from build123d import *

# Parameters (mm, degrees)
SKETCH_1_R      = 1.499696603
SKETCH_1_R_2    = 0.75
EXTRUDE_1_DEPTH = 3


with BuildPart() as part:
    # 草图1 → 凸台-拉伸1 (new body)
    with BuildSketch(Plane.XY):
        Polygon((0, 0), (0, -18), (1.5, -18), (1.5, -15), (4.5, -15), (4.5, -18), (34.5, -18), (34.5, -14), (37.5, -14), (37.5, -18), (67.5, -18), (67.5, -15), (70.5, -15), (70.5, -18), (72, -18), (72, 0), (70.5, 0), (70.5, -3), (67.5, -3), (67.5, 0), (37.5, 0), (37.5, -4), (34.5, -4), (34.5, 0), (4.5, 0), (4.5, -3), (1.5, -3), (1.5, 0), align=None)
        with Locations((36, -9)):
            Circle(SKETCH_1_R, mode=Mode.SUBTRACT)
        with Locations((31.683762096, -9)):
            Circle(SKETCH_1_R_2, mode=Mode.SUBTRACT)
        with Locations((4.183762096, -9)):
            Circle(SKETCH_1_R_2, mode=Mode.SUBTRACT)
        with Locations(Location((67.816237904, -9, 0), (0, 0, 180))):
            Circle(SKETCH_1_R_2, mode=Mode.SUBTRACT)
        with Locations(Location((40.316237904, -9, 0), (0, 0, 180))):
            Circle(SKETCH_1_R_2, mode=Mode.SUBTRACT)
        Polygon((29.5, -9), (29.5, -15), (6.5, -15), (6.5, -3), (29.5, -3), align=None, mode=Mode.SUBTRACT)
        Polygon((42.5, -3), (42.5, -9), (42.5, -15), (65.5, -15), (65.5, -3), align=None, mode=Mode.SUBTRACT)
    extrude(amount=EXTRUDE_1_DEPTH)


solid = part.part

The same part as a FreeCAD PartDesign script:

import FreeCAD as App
import Part
import Sketcher

V = App.Vector
Q = App.Units.Quantity

doc = App.newDocument("Part")
params = doc.addObject("Spreadsheet::Sheet", "Params")
for row, (alias, value) in enumerate([
    ("sketch1_diameter", "1.5 mm"),
    ("sketch1_width", "3 mm"),
    ("sketch1_width2", "30 mm"),
    ("sketch1_width3", "23 mm"),
    ("sketch1_height", "18 mm"),
    ("pad1_length", "3 mm"),
], start=1):
    params.set(f"A{row}", alias)
    params.set(f"B{row}", "=" + value)
    params.setAlias(f"B{row}", alias)

body = doc.addObject("PartDesign::Body", "Body")

sketch1 = doc.addObject("Sketcher::SketchObject", "Sketch")
body.addObject(sketch1)
sketch1.AttachmentSupport = (doc.XY_Plane, [""])
sketch1.MapMode = "FlatFace"
sketch1.addGeometry([
    Part.LineSegment(V(0, 0, 0), V(0, -18, 0)),
    Part.LineSegment(V(0, -18, 0), V(1.5, -18, 0)),
    Part.LineSegment(V(1.5, -18, 0), V(1.5, -15, 0)),
    Part.LineSegment(V(1.5, -15, 0), V(4.5, -15, 0)),
    Part.LineSegment(V(4.5, -15, 0), V(4.5, -18, 0)),
    Part.LineSegment(V(4.5, -18, 0), V(34.5, -18, 0)),
    Part.LineSegment(V(34.5, -18, 0), V(34.5, -14, 0)),
    Part.LineSegment(V(34.5, -14, 0), V(37.5, -14, 0)),
    Part.LineSegment(V(37.5, -14, 0), V(37.5, -18, 0)),
    Part.LineSegment(V(37.5, -18, 0), V(67.5, -18, 0)),
    Part.LineSegment(V(67.5, -18, 0), V(67.5, -15, 0)),
    Part.LineSegment(V(67.5, -15, 0), V(70.5, -15, 0)),
    Part.LineSegment(V(70.5, -15, 0), V(70.5, -18, 0)),
    Part.LineSegment(V(70.5, -18, 0), V(72, -18, 0)),
    Part.LineSegment(V(72, -18, 0), V(72, 0, 0)),
    Part.LineSegment(V(72, 0, 0), V(70.5, 0, 0)),
    Part.LineSegment(V(70.5, 0, 0), V(70.5, -3, 0)),
    Part.LineSegment(V(70.5, -3, 0), V(67.5, -3, 0)),
    Part.LineSegment(V(67.5, -3, 0), V(67.5, 0, 0)),
    Part.LineSegment(V(67.5, 0, 0), V(37.5, 0, 0)),
    Part.LineSegment(V(37.5, 0, 0), V(37.5, -4, 0)),
    Part.LineSegment(V(37.5, -4, 0), V(34.5, -4, 0)),
    Part.LineSegment(V(34.5, -4, 0), V(34.5, 0, 0)),
    Part.LineSegment(V(34.5, 0, 0), V(4.5, 0, 0)),
    Part.LineSegment(V(4.5, 0, 0), V(4.5, -3, 0)),
    Part.LineSegment(V(4.5, -3, 0), V(1.5, -3, 0)),
    Part.LineSegment(V(1.5, -3, 0), V(1.5, 0, 0)),
    Part.LineSegment(V(1.5, 0, 0), V(0, 0, 0)),
    Part.Circle(V(4.2, -9, 0), V(0, 0, 1), 0.8),
    Part.LineSegment(V(29.5, -3, 0), V(29.5, -15, 0)),
    Part.LineSegment(V(29.5, -15, 0), V(6.5, -15, 0)),
    Part.LineSegment(V(6.5, -15, 0), V(6.5, -3, 0)),
    Part.LineSegment(V(6.5, -3, 0), V(29.5, -3, 0)),
    Part.Circle(V(31.7, -9, 0), V(0, 0, 1), 0.8),
    Part.Circle(V(36, -9, 0), V(0, 0, 1), 1.5),
    Part.Circle(V(40.3, -9, 0), V(0, 0, 1), 0.8),
    Part.LineSegment(V(42.5, -15, 0), V(42.5, -3, 0)),
    Part.LineSegment(V(42.5, -3, 0), V(65.5, -3, 0)),
    Part.LineSegment(V(65.5, -3, 0), V(65.5, -15, 0)),
    Part.LineSegment(V(65.5, -15, 0), V(42.5, -15, 0)),
    Part.Circle(V(67.8, -9, 0), V(0, 0, 1), 0.8),
], False)
sketch1.addConstraint([
    Sketcher.Constraint("Coincident", 0, 2, 1, 1),
    Sketcher.Constraint("Coincident", 1, 2, 2, 1),
    Sketcher.Constraint("Coincident", 2, 2, 3, 1),
    Sketcher.Constraint("Coincident", 3, 2, 4, 1),
    Sketcher.Constraint("Coincident", 4, 2, 5, 1),
    Sketcher.Constraint("Coincident", 5, 2, 6, 1),
    Sketcher.Constraint("Coincident", 6, 2, 7, 1),
    Sketcher.Constraint("Coincident", 7, 2, 8, 1),
    Sketcher.Constraint("Coincident", 8, 2, 9, 1),
    Sketcher.Constraint("Coincident", 9, 2, 10, 1),
    Sketcher.Constraint("Coincident", 10, 2, 11, 1),
    Sketcher.Constraint("Coincident", 11, 2, 12, 1),
    Sketcher.Constraint("Coincident", 12, 2, 13, 1),
    Sketcher.Constraint("Coincident", 13, 2, 14, 1),
    Sketcher.Constraint("Coincident", 14, 2, 15, 1),
    Sketcher.Constraint("Coincident", 15, 2, 16, 1),
    Sketcher.Constraint("Coincident", 16, 2, 17, 1),
    Sketcher.Constraint("Coincident", 17, 2, 18, 1),
    Sketcher.Constraint("Coincident", 18, 2, 19, 1),
    Sketcher.Constraint("Coincident", 19, 2, 20, 1),
    Sketcher.Constraint("Coincident", 20, 2, 21, 1),
    Sketcher.Constraint("Coincident", 21, 2, 22, 1),
    Sketcher.Constraint("Coincident", 22, 2, 23, 1),
    Sketcher.Constraint("Coincident", 23, 2, 24, 1),
    Sketcher.Constraint("Coincident", 24, 2, 25, 1),
    Sketcher.Constraint("Coincident", 25, 2, 26, 1),
    Sketcher.Constraint("Coincident", 26, 2, 27, 1),
    Sketcher.Constraint("Coincident", 27, 2, 0, 1),
    Sketcher.Constraint("Coincident", 29, 2, 30, 1),
    Sketcher.Constraint("Coincident", 30, 2, 31, 1),
    Sketcher.Constraint("Coincident", 31, 2, 32, 1),
    Sketcher.Constraint("Coincident", 32, 2, 29, 1),
    Sketcher.Constraint("Coincident", 36, 2, 37, 1),
    Sketcher.Constraint("Coincident", 37, 2, 38, 1),
    Sketcher.Constraint("Coincident", 38, 2, 39, 1),
    Sketcher.Constraint("Coincident", 39, 2, 36, 1),
    Sketcher.Constraint("Vertical", 0),
    Sketcher.Constraint("Horizontal", 1),
    Sketcher.Constraint("Vertical", 2),
    Sketcher.Constraint("Horizontal", 3),
    Sketcher.Constraint("Vertical", 4),
    Sketcher.Constraint("Horizontal", 5),
    Sketcher.Constraint("Vertical", 6),
    Sketcher.Constraint("Horizontal", 7),
    Sketcher.Constraint("Vertical", 8),
    Sketcher.Constraint("Horizontal", 9),
    Sketcher.Constraint("Vertical", 10),
    Sketcher.Constraint("Horizontal", 11),
    Sketcher.Constraint("Vertical", 12),
    Sketcher.Constraint("Horizontal", 13),
    Sketcher.Constraint("Vertical", 14),
    Sketcher.Constraint("Horizontal", 15),
    Sketcher.Constraint("Vertical", 16),
    Sketcher.Constraint("Horizontal", 17),
    Sketcher.Constraint("Vertical", 18),
    Sketcher.Constraint("Horizontal", 19),
    Sketcher.Constraint("Vertical", 20),
    Sketcher.Constraint("Horizontal", 21),
    Sketcher.Constraint("Vertical", 22),
    Sketcher.Constraint("Horizontal", 23),
    Sketcher.Constraint("Vertical", 24),
    Sketcher.Constraint("Horizontal", 25),
    Sketcher.Constraint("Vertical", 26),
    Sketcher.Constraint("Horizontal", 27),
    Sketcher.Constraint("Vertical", 29),
    Sketcher.Constraint("Horizontal", 30),
    Sketcher.Constraint("Vertical", 31),
    Sketcher.Constraint("Horizontal", 32),
    Sketcher.Constraint("Vertical", 36),
    Sketcher.Constraint("Horizontal", 37),
    Sketcher.Constraint("Vertical", 38),
    Sketcher.Constraint("Horizontal", 39),
    Sketcher.Constraint("Coincident", 27, 2, -1, 1),
    Sketcher.Constraint("Equal", 28, 33),
    Sketcher.Constraint("Equal", 33, 35),
    Sketcher.Constraint("Equal", 35, 40),
    Sketcher.Constraint("PointOnObject", 14, 2, -1),
    Sketcher.Constraint("PointOnObject", 18, 2, -1),
    Sketcher.Constraint("PointOnObject", 22, 2, -1),
    Sketcher.Constraint("Horizontal", 28, 3, 33, 3),
    Sketcher.Constraint("Horizontal", 33, 3, 34, 3),
    Sketcher.Constraint("Horizontal", 34, 3, 35, 3),
    Sketcher.Constraint("Horizontal", 35, 3, 40, 3),
    Sketcher.Constraint("Horizontal", 1, 2, 4, 2),
    Sketcher.Constraint("Horizontal", 5, 2, 8, 2),
    Sketcher.Constraint("Horizontal", 3, 2, 10, 2),
    Sketcher.Constraint("Horizontal", 9, 2, 12, 2),
    Sketcher.Constraint("Horizontal", 17, 2, 24, 2),
    Sketcher.Constraint("Horizontal", 11, 2, 29, 2),
    Sketcher.Constraint("Horizontal", 25, 2, 31, 2),
    Sketcher.Constraint("Horizontal", 32, 2, 36, 2),
    Sketcher.Constraint("Horizontal", 30, 2, 38, 2),
    Sketcher.Constraint("Vertical", 12, 2, 15, 2),
    Sketcher.Constraint("Vertical", 10, 2, 17, 2),
    Sketcher.Constraint("Vertical", 8, 2, 19, 2),
    Sketcher.Constraint("Vertical", 6, 2, 21, 2),
    Sketcher.Constraint("Vertical", 4, 2, 23, 2),
    Sketcher.Constraint("Vertical", 2, 2, 25, 2),
    Sketcher.Constraint("Equal", 3, 7),
    Sketcher.Constraint("Equal", 5, 9),
    Sketcher.Constraint("Equal", 7, 11),
    Sketcher.Constraint("Equal", 1, 13),
    Sketcher.Constraint("Equal", 32, 37),
    Sketcher.Constraint("Equal", 25, 2),
    Sketcher.Constraint("Equal", 12, 16),
    Sketcher.Constraint("Equal", 8, 20),
    Sketcher.Constraint("Diameter", 28, Q("1.5 mm")),
    Sketcher.Constraint("DistanceX", 3, 1, 3, 2, Q("3 mm")),
    Sketcher.Constraint("DistanceX", 5, 1, 5, 2, Q("30 mm")),
    Sketcher.Constraint("DistanceX", 30, 2, 30, 1, Q("23 mm")),
    Sketcher.Constraint("DistanceY", 0, 2, 0, 1, Q("18 mm")),
    Sketcher.Constraint("DistanceY", 6, 1, 6, 2, Q("4 mm")),
    Sketcher.Constraint("DistanceX", 1, 1, 1, 2, Q("1.5 mm")),
    Sketcher.Constraint("DistanceY", 28, 3, -1, 1, Q("9 mm")),
    Sketcher.Constraint("DistanceX", -1, 1, 34, 3, Q("36 mm")),
    Sketcher.Constraint("DistanceX", 29, 2, 6, 2, Q("5 mm")),
    Sketcher.Constraint("DistanceX", 20, 2, 36, 2, Q("5 mm")),
    Sketcher.Constraint("DistanceX", 28, 3, 33, 3, Q("27.5 mm")),
    Sketcher.Constraint("DistanceX", 35, 3, 40, 3, Q("27.5 mm")),
    Sketcher.Constraint("Diameter", 34, Q("2.999393 mm")),
    Sketcher.Constraint("DistanceX", -1, 1, 28, 3, Q("4.183762 mm")),
    Sketcher.Constraint("DistanceX", -1, 1, 35, 3, Q("40.316238 mm")),
])
sketch1.setExpression("Constraints[106]", "Params.sketch1_diameter")
sketch1.setExpression("Constraints[107]", "Params.sketch1_width")
sketch1.setExpression("Constraints[108]", "Params.sketch1_width2")
sketch1.setExpression("Constraints[109]", "Params.sketch1_width3")
sketch1.setExpression("Constraints[110]", "Params.sketch1_height")
pad1 = doc.addObject("PartDesign::Pad", "Pad")
body.addObject(pad1)
pad1.Profile = sketch1
pad1.setExpression("Length", "Params.pad1_length")

doc.recompute()
